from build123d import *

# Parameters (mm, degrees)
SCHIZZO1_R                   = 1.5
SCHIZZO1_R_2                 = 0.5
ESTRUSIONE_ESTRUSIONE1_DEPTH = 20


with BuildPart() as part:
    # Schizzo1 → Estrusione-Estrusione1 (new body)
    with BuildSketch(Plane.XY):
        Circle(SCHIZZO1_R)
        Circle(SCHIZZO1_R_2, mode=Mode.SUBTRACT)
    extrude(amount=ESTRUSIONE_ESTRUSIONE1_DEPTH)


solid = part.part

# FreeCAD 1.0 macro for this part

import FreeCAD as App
import Part
import Sketcher
from FreeCAD import Vector

doc = App.newDocument("Part")
body = doc.addObject("PartDesign::Body", "Body")

# Sketch on XY plane
sketch1 = body.newObject("Sketcher::SketchObject", "Sketch")
sketch1.AttachmentSupport = (doc.getObject("XY_Plane"), [""])
sketch1.MapMode = "FlatFace"
sketch1.addGeometry([
    Part.Circle(Vector(0, 0, 0), Vector(0, 0, 1), 1.5),
    Part.Circle(Vector(0, 0, 0), Vector(0, 0, 1), 0.5),
], False)
sketch1.addConstraint([
    Sketcher.Constraint("Coincident", 0, 3, -1, 1),
    Sketcher.Constraint("Coincident", 1, 3, -1, 1),
    Sketcher.Constraint("Diameter", 0, 3.0),
    Sketcher.Constraint("Diameter", 1, 1.0),
])
pad1 = body.newObject("PartDesign::Pad", "Pad")
pad1.Profile = sketch1
pad1.Length = 20

doc.recompute()
